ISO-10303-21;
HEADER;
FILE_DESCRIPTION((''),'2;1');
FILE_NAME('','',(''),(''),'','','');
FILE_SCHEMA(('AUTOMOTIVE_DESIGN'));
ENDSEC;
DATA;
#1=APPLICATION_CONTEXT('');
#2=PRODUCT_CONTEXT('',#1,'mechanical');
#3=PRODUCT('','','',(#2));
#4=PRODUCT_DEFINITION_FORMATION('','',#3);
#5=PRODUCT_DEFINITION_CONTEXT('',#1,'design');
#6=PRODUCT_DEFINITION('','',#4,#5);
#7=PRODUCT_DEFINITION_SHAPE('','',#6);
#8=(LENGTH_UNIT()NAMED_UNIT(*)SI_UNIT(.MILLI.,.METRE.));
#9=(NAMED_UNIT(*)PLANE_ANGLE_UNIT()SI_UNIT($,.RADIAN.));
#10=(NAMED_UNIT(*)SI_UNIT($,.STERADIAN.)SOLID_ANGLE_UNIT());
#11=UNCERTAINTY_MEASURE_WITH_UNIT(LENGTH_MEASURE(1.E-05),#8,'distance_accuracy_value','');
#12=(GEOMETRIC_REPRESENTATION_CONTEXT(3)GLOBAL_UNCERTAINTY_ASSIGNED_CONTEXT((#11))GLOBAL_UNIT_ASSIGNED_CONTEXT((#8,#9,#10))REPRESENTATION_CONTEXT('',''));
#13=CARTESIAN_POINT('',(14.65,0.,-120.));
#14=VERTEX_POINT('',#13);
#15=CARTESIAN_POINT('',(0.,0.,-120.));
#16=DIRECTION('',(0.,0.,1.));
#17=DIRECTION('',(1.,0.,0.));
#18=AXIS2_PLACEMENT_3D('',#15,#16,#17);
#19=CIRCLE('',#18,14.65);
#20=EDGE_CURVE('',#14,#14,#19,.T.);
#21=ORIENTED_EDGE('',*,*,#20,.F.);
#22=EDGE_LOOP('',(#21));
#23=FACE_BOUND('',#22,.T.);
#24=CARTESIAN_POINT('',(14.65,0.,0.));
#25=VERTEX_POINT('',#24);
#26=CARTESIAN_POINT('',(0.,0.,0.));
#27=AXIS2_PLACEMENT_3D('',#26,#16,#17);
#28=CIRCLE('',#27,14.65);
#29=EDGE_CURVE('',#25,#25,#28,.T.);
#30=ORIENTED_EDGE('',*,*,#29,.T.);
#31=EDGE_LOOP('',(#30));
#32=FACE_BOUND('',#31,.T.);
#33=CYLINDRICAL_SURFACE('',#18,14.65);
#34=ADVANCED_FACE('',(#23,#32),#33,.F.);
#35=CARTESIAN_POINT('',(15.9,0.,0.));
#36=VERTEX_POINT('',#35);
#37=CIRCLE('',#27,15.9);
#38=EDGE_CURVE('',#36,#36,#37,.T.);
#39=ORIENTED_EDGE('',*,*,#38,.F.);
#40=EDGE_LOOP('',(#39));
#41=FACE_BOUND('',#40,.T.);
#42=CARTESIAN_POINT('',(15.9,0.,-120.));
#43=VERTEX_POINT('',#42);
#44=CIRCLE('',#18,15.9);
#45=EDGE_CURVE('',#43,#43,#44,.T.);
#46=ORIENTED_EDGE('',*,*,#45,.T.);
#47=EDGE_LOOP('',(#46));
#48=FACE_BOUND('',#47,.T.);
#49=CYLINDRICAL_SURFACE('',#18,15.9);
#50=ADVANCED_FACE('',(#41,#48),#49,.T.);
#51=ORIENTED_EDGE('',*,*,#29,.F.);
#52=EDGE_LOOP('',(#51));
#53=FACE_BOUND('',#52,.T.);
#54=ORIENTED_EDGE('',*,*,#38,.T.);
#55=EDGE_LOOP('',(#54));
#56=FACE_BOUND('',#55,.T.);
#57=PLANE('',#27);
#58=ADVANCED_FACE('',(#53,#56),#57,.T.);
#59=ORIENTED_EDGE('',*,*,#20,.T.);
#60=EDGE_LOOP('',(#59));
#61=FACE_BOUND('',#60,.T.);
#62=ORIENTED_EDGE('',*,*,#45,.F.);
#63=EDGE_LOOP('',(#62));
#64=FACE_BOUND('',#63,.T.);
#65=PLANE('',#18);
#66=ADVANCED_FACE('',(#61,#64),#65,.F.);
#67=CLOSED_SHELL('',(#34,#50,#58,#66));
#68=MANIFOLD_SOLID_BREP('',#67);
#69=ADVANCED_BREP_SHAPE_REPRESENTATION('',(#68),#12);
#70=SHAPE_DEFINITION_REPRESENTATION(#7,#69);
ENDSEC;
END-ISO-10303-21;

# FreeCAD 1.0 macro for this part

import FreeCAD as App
import Part
import Sketcher
from FreeCAD import Vector

doc = App.newDocument("Part")
body = doc.addObject("PartDesign::Body", "Body")

sketch1 = doc.addObject("Sketcher::SketchObject", "Sketch")
body.addObject(sketch1)
sketch1.AttachmentSupport = (doc.XY_Plane, [""])
sketch1.MapMode = "FlatFace"
sketch1.addGeometry(Part.Circle(Vector(0, 0, 0), Vector(0, 0, 1), 16), False)
sketch1.addGeometry(Part.Circle(Vector(0, 0, 0), Vector(0, 0, 1), 15), False)
sketch1.addConstraint(Sketcher.Constraint("Coincident", 0, 3, -1, 1))
sketch1.addConstraint(Sketcher.Constraint("Coincident", 1, 3, -1, 1))
sketch1.addConstraint(Sketcher.Constraint("Diameter", 0, 31.8))
sketch1.addConstraint(Sketcher.Constraint("Diameter", 1, 29.3))
pad1 = doc.addObject("PartDesign::Pad", "Pad")
body.addObject(pad1)
pad1.Profile = sketch1
pad1.Length = 120
pad1.Reversed = True

doc.recompute()
